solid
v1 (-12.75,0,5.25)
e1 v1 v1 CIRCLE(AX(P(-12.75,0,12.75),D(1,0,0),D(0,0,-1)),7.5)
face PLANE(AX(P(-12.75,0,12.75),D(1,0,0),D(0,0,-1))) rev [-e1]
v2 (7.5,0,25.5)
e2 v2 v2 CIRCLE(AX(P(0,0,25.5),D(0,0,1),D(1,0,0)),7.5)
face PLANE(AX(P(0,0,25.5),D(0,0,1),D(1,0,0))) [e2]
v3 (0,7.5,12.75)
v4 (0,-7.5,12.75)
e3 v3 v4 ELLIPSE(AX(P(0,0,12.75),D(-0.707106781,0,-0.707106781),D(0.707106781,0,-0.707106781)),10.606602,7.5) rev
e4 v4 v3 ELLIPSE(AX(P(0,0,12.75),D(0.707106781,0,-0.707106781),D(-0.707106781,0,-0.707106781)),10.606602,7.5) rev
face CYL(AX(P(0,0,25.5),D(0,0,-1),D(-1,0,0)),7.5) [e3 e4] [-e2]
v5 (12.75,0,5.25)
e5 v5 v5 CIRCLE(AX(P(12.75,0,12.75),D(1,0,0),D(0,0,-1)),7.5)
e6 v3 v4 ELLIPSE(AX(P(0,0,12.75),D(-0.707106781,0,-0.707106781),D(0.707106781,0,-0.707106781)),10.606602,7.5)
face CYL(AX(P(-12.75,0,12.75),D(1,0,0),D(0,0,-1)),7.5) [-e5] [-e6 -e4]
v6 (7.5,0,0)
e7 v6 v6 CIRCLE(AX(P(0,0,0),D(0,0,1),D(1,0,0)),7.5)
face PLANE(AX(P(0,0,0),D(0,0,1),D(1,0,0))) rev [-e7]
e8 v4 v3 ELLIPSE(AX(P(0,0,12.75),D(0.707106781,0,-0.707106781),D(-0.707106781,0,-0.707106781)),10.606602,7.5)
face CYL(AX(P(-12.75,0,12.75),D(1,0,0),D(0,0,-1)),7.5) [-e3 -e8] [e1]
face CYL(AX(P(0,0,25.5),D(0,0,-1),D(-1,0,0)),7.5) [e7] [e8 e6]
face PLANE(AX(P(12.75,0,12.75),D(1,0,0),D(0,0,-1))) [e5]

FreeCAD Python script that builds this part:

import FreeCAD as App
import Part
import Sketcher

V = App.Vector
Q = App.Units.Quantity

doc = App.newDocument("Part")
body = doc.addObject("PartDesign::Body", "Body")

# Sketch on XY plane
sketch1 = body.newObject("Sketcher::SketchObject", "Sketch")
sketch1.AttachmentSupport = (doc.getObject("XY_Plane"), [""])
sketch1.MapMode = "FlatFace"
sketch1.addGeometry(Part.Circle(V(0, 0, 0), V(0, 0, 1), 8), False)
sketch1.addConstraint(Sketcher.Constraint("Coincident", 0, 3, -1, 1))
sketch1.addConstraint(Sketcher.Constraint("Diameter", 0, Q("15 mm")))
pad1 = body.newObject("PartDesign::Pad", "Pad")
pad1.Profile = sketch1
pad1.Length = 25.5

# Sketch on YZ plane
sketch2 = body.newObject("Sketcher::SketchObject", "Sketch001")
sketch2.AttachmentSupport = (doc.getObject("YZ_Plane"), [""])
sketch2.MapMode = "FlatFace"
sketch2.addGeometry(Part.Circle(V(0, 13, 0), V(0, 0, 1), 8), False)
sketch2.addConstraint(Sketcher.Constraint("PointOnObject", 0, 3, -2))
sketch2.addConstraint(Sketcher.Constraint("Diameter", 0, Q("15 mm")))
sketch2.addConstraint(Sketcher.Constraint("DistanceY", -1, 1, 0, 3, Q("12.75 mm")))
pad2 = body.newObject("PartDesign::Pad", "Pad001")
pad2.Profile = sketch2
pad2.Type = "TwoLengths"
pad2.Length = 12.75
pad2.Length2 = 12.75

doc.recompute()
